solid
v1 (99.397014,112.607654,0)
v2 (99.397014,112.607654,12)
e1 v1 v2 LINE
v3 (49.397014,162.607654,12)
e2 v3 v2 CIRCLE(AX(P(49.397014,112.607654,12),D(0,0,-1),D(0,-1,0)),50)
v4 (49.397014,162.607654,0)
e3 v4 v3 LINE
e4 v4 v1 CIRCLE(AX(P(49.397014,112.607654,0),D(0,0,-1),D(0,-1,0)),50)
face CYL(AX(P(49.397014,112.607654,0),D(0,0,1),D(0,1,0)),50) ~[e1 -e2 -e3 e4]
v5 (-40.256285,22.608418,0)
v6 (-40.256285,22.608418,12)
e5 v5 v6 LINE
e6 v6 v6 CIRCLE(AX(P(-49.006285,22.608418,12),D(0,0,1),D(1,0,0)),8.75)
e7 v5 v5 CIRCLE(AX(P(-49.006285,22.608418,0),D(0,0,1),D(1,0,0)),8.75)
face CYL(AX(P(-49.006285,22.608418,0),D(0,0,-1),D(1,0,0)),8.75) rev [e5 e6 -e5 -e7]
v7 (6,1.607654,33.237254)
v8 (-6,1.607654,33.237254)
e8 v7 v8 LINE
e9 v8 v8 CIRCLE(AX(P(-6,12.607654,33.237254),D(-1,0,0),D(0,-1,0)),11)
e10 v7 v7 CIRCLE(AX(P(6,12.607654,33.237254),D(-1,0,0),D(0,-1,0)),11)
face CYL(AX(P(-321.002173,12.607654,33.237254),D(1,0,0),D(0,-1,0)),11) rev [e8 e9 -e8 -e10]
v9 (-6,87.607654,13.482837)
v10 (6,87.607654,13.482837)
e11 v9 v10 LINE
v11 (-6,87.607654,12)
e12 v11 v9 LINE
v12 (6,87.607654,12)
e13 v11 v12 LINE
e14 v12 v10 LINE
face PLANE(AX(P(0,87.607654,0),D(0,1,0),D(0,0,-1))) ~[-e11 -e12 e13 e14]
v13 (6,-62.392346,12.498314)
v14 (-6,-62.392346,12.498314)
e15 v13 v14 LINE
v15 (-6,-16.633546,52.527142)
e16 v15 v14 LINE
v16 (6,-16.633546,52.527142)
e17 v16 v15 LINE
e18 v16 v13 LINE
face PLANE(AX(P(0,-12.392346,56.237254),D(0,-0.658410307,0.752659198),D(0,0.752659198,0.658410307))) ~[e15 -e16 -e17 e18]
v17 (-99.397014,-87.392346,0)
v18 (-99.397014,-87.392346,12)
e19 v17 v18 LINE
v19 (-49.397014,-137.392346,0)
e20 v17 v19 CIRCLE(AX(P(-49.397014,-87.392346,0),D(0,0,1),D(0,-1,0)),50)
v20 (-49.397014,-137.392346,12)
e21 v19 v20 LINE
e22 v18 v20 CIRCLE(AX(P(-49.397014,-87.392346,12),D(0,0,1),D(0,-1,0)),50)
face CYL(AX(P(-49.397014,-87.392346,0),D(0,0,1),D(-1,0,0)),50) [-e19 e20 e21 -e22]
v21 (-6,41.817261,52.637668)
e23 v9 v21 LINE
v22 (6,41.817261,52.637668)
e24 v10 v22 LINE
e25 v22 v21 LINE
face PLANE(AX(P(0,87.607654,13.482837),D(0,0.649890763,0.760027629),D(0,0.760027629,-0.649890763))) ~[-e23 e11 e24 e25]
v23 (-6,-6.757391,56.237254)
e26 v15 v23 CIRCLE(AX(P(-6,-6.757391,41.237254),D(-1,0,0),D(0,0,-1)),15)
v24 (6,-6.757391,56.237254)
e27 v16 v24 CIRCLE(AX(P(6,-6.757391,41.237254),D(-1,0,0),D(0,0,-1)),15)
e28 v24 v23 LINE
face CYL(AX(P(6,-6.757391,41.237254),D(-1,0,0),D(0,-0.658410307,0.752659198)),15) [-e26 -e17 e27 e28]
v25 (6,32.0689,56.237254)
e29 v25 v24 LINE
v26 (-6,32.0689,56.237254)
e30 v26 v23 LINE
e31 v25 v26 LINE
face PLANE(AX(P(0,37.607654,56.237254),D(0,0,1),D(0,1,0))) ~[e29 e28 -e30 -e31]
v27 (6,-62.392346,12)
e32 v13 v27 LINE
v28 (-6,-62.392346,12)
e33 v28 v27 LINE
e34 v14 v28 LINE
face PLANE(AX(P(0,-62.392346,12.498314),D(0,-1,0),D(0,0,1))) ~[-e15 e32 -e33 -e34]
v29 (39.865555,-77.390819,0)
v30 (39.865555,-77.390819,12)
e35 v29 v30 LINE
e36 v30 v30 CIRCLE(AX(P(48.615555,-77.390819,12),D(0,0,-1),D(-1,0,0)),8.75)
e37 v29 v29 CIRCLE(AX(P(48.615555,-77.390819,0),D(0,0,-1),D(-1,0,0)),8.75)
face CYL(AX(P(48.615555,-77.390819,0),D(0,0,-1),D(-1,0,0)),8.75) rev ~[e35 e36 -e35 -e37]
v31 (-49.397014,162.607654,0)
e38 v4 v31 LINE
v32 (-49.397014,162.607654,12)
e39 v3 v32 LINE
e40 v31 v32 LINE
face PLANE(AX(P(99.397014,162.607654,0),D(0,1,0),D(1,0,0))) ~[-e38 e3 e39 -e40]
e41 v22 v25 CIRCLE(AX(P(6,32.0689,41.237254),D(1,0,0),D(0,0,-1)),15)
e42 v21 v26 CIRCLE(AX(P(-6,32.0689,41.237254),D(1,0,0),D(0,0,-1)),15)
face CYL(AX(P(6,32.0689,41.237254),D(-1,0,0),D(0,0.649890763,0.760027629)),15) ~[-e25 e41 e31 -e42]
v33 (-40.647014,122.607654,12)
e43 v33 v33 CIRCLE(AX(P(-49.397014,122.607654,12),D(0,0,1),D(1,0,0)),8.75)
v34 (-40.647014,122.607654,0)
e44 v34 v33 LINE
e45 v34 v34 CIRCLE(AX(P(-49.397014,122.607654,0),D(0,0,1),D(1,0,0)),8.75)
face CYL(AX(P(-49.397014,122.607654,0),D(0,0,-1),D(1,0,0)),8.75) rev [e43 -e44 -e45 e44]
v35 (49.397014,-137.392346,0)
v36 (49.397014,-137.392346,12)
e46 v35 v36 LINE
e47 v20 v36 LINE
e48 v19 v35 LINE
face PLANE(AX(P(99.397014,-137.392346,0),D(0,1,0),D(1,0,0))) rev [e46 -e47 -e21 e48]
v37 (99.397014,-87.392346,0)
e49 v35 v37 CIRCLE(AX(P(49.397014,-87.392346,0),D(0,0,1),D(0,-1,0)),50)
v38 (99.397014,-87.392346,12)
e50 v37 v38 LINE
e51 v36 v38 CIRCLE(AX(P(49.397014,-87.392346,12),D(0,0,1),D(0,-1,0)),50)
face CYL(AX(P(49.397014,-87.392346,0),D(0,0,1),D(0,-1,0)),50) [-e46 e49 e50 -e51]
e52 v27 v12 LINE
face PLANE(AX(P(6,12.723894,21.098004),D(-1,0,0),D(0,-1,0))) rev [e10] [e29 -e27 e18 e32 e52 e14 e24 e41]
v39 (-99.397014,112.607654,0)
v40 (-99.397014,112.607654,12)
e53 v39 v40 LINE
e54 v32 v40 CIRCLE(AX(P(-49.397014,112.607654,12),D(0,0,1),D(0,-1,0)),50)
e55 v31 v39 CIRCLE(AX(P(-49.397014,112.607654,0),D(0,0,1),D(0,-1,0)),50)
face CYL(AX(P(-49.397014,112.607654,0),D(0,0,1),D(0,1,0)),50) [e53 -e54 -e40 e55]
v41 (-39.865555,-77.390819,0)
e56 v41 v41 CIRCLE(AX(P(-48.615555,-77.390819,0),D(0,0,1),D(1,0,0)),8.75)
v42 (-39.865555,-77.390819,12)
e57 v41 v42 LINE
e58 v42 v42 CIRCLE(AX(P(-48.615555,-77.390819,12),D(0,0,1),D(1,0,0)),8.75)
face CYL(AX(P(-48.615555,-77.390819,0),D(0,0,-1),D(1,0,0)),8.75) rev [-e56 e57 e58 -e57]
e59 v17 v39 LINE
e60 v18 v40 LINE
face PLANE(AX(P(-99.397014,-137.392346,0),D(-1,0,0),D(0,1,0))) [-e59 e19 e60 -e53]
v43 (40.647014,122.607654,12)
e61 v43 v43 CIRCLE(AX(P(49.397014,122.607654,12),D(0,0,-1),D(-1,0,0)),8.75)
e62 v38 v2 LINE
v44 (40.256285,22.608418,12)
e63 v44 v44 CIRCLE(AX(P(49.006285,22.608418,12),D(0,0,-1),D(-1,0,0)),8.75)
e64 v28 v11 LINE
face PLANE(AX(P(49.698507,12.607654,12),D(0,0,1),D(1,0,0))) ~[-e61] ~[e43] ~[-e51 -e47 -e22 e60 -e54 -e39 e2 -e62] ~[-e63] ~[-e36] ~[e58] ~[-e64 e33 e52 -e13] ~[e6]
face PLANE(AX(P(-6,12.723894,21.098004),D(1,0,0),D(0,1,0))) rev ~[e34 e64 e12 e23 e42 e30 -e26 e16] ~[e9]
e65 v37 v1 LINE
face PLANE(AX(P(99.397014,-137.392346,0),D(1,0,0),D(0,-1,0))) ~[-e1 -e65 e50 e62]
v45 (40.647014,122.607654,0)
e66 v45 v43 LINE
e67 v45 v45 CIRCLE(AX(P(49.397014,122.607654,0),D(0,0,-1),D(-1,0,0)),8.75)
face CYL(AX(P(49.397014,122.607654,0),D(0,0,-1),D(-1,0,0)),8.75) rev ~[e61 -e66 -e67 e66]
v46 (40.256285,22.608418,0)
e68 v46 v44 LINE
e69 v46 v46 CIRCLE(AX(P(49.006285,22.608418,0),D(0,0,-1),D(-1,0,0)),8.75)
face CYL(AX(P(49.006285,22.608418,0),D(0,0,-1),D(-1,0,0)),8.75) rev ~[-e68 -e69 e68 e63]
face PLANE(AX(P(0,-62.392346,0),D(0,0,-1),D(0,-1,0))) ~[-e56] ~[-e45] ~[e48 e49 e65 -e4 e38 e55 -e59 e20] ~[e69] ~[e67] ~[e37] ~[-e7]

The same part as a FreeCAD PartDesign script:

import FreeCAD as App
import Part
import Sketcher

V = App.Vector
Q = App.Units.Quantity


def edges_at(feature, points):
    """Names of the edges that pass closest to the given points."""
    edges = feature.Shape.Edges
    near = lambda p: min(range(len(edges)), key=lambda i: edges[i].distToShape(Part.Vertex(*p))[0])
    return sorted({f"Edge{near(p) + 1}" for p in points})


def add_polygon(sketch, points):
    """Adds a closed chain of lines whose ends are joined by coincident constraints."""
    first, n = sketch.GeometryCount, len(points)
    for a, b in zip(points, points[1:] + points[:1]):
        sketch.addGeometry(Part.LineSegment(App.Vector(*a, 0), App.Vector(*b, 0)), False)
    for i in range(n):
        sketch.addConstraint(Sketcher.Constraint("Coincident", first + i, 2, first + (i + 1) % n, 1))

doc = App.newDocument("Part")
body = doc.addObject("PartDesign::Body", "Body")

# Sketch on XY plane
sketch1 = doc.addObject("Sketcher::SketchObject", "Sketch")
body.addObject(sketch1)
sketch1.AttachmentSupport = (doc.XY_Plane, [""])
sketch1.MapMode = "FlatFace"
add_polygon(sketch1, [(-99, 163), (-99, -137), (0, -137), (0, 163)])  # lines 0-3
sketch1.addGeometry(Part.Circle(V(-49, -77, 0), V(0, 0, 1), 9), False)  # 4
sketch1.addGeometry(Part.Circle(V(-49, 23, 0), V(0, 0, 1), 9), False)  # 5
sketch1.addGeometry(Part.Circle(V(-49, 123, 0), V(0, 0, 1), 9), False)  # 6
sketch1.addConstraint([
    Sketcher.Constraint("Vertical", 0),
    Sketcher.Constraint("Horizontal", 1),
    Sketcher.Constraint("Vertical", 2),
    Sketcher.Constraint("Horizontal", 3),
    Sketcher.Constraint("Equal", 4, 5),
    Sketcher.Constraint("Equal", 5, 6),
    Sketcher.Constraint("PointOnObject", 1, 2, -2),
    Sketcher.Constraint("Diameter", 4, Q("17.5 mm")),
    Sketcher.Constraint("DistanceY", 0, 2, 0, 1, Q("300 mm")),
    Sketcher.Constraint("DistanceX", 0, 2, 6, 3, Q("50 mm")),
    Sketcher.Constraint("DistanceY", 0, 2, 6, 3, Q("260 mm")),
    Sketcher.Constraint("DistanceX", 1, 1, 1, 2, Q("99.397014 mm")),
    Sketcher.Constraint("DistanceY", 4, 3, -1, 1, Q("77.390819 mm")),
    Sketcher.Constraint("DistanceX", 5, 3, 4, 3, Q("0.39073 mm")),
    Sketcher.Constraint("DistanceX", 6, 3, 5, 3, Q("0.39073 mm")),
    Sketcher.Constraint("DistanceY", -1, 1, 5, 3, Q("22.608418 mm")),
    Sketcher.Constraint("DistanceY", -1, 1, 6, 3, Q("122.607654 mm")),
])
pad1 = doc.addObject("PartDesign::Pad", "Pad")
body.addObject(pad1)
pad1.Profile = sketch1
pad1.Length = 12

# Sketch on YZ plane
sketch2 = doc.addObject("Sketcher::SketchObject", "Sketch001")
body.addObject(sketch2)
sketch2.AttachmentSupport = (doc.YZ_Plane, [""])
sketch2.MapMode = "FlatFace"
add_polygon(sketch2, [(-62, 12), (-62, 0), (88, 0), (88, 13), (38, 56), (-12, 56)])  # lines 0-5
sketch2.addConstraint([
    Sketcher.Constraint("Vertical", 0),
    Sketcher.Constraint("Horizontal", 1),
    Sketcher.Constraint("Vertical", 2),
    Sketcher.Constraint("Horizontal", 4),
    Sketcher.Constraint("PointOnObject", 0, 2, -1),
    Sketcher.Constraint("DistanceX", 1, 1, 1, 2, Q("150 mm")),
    Sketcher.Constraint("DistanceX", 4, 2, 4, 1, Q("50 mm")),
    Sketcher.Constraint("DistanceX", 3, 2, 2, 2, Q("50 mm")),
    Sketcher.Constraint("Distance", 5, Q("66.431129 mm")),
    Sketcher.Constraint("DistanceY", 0, 2, 0, 1, Q("12.498314 mm")),
    Sketcher.Constraint("DistanceY", 2, 1, 2, 2, Q("13.482837 mm")),
    Sketcher.Constraint("DistanceX", 0, 2, -1, 1, Q("62.392346 mm")),
])
pad2 = doc.addObject("PartDesign::Pad", "Pad001")
body.addObject(pad2)
pad2.Profile = sketch2
pad2.Length = 6
pad2.Reversed = True

# Sketch on YZ plane
sketch3 = doc.addObject("Sketcher::SketchObject", "Sketch002")
body.addObject(sketch3)
sketch3.AttachmentSupport = (doc.YZ_Plane, [""])
sketch3.MapMode = "FlatFace"
sketch3.addGeometry(Part.Circle(V(13, 33, 0), V(0, 0, 1), 11), False)
sketch3.addConstraint([
    Sketcher.Constraint("Diameter", 0, Q("22 mm")),
    Sketcher.Constraint("DistanceX", -1, 1, 0, 3, Q("12.607654 mm")),
    Sketcher.Constraint("DistanceY", -1, 1, 0, 3, Q("33.237254 mm")),
])
doc.recompute()
hole = doc.addObject("PartDesign::Hole", "Hole")
body.addObject(hole)
hole.Profile = sketch3
hole.ThreadType = "None"
hole.Diameter = 22
hole.DepthType = "ThroughAll"
body2 = doc.addObject("PartDesign::Body", "Body001")
doc.recompute()

body2.BaseFeature = body
doc.recompute()

mirroring = doc.addObject("Part::Mirroring", "Mirroring")
mirroring.Source = body
mirroring.Base = V(0, 12.794284, 18.839447)
mirroring.Normal = V(1, 0, 0)
body3 = doc.addObject("PartDesign::Body", "Body002")
body3.BaseFeature = mirroring
boolean = doc.addObject("PartDesign::Boolean", "Boolean")
body2.addObject(boolean)
boolean.Type = "Fuse"
boolean.addObjects([body3])
doc.recompute()

fillet = doc.addObject("PartDesign::Fillet", "Fillet")
body2.addObject(fillet)
fillet.Base = (boolean, edges_at(boolean, [
    (-99.397, 162.608, 6),
    (99.397, 162.608, 6),
    (99.397, -137.392, 6),
    (-99.397, -137.392, 6),
]))
fillet.Radius = 50
doc.recompute()

fillet2 = doc.addObject("PartDesign::Fillet", "Fillet001")
body2.addObject(fillet2)
fillet2.Base = (fillet, edges_at(fillet, [(0, 37.608, 56.237), (0, -12.392, 56.237)]))
fillet2.Radius = 15
mirroring.Visibility = False

doc.recompute()
